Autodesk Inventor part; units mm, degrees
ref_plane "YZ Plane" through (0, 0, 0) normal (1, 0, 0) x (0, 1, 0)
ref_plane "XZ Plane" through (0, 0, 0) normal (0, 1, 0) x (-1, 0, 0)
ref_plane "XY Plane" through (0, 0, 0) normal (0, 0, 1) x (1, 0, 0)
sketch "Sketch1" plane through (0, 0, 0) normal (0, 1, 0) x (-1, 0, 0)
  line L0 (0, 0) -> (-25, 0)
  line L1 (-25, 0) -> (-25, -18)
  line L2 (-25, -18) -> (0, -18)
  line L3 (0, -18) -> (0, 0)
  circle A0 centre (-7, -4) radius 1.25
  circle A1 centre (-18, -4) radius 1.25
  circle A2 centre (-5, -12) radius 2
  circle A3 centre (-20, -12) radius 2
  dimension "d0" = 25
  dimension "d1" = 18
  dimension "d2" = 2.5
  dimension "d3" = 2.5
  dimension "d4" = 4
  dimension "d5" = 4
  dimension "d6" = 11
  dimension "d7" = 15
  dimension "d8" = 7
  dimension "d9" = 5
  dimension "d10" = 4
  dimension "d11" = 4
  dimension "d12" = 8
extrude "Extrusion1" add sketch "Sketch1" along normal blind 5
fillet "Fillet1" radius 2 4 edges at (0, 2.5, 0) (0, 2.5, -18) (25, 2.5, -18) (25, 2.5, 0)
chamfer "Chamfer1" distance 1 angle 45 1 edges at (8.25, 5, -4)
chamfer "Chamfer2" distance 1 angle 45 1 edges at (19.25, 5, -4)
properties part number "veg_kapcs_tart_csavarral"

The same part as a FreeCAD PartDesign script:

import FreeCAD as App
import Part
import Sketcher
from FreeCAD import Vector
Q = App.Units.Quantity


def edges_at(feature, points):
    """Names of the edges that pass closest to the given points."""
    edges = feature.Shape.Edges
    near = lambda p: min(range(len(edges)), key=lambda i: edges[i].distToShape(Part.Vertex(*p))[0])
    return sorted({f"Edge{near(p) + 1}" for p in points})


def add_polygon(sketch, points):
    """Adds a closed chain of lines whose ends are joined by coincident constraints."""
    first, n = sketch.GeometryCount, len(points)
    for a, b in zip(points, points[1:] + points[:1]):
        sketch.addGeometry(Part.LineSegment(App.Vector(*a, 0), App.Vector(*b, 0)), False)
    for i in range(n):
        sketch.addConstraint(Sketcher.Constraint("Coincident", first + i, 2, first + (i + 1) % n, 1))

doc = App.newDocument("Part")
params = doc.addObject("Spreadsheet::Sheet", "Params")
for row, (alias, value) in enumerate([
    ("sketch1_diameter", "4 mm"),
    ("sketch1_diameter2", "2.5 mm"),
    ("sketch1_width", "25 mm"),
    ("sketch1_height", "18 mm"),
    ("pad1_length", "5 mm"),
    ("fillet_radius", "2 mm"),
    ("chamfer_size", "1 mm"),
    ("chamfer2_size", "1 mm"),
], start=1):
    params.set(f"A{row}", alias)
    params.set(f"B{row}", "=" + value)
    params.setAlias(f"B{row}", alias)

body = doc.addObject("PartDesign::Body", "Body")

sketch1 = body.newObject("Sketcher::SketchObject", "Sketch")
sketch1.AttachmentSupport = (doc.getObject("XZ_Plane"), [""])
sketch1.MapMode = "FlatFace"
add_polygon(sketch1, [(0, -18), (0, 0), (25, 0), (25, -18)])
sketch1.addGeometry(Part.Circle(Vector(20, -12, 0), Vector(0, 0, 1), 2), False)
sketch1.addGeometry(Part.Circle(Vector(5, -12, 0), Vector(0, 0, 1), 2), False)
sketch1.addGeometry(Part.Circle(Vector(18, -4, 0), Vector(0, 0, 1), 1.2), False)
sketch1.addGeometry(Part.Circle(Vector(7, -4, 0), Vector(0, 0, 1), 1.2), False)
sketch1.addConstraint(Sketcher.Constraint("Vertical", 0))
sketch1.addConstraint(Sketcher.Constraint("Horizontal", 1))
sketch1.addConstraint(Sketcher.Constraint("Vertical", 2))
sketch1.addConstraint(Sketcher.Constraint("Horizontal", 3))
sketch1.addConstraint(Sketcher.Constraint("Coincident", 0, 2, -1, 1))
sketch1.addConstraint(Sketcher.Constraint("Equal", 4, 5))
sketch1.addConstraint(Sketcher.Constraint("Equal", 6, 7))
sketch1.addConstraint(Sketcher.Constraint("Horizontal", 4, 3, 5, 3))
sketch1.addConstraint(Sketcher.Constraint("Horizontal", 6, 3, 7, 3))
sketch1.addConstraint(Sketcher.Constraint("Diameter", 4, Q("4 mm")))
sketch1.addConstraint(Sketcher.Constraint("Diameter", 6, Q("2.5 mm")))
sketch1.addConstraint(Sketcher.Constraint("DistanceX", 1, 1, 1, 2, Q("25 mm")))
sketch1.addConstraint(Sketcher.Constraint("DistanceY", 0, 1, 0, 2, Q("18 mm")))
sketch1.addConstraint(Sketcher.Constraint("DistanceX", -1, 1, 5, 3, Q("5 mm")))
sketch1.addConstraint(Sketcher.Constraint("DistanceX", -1, 1, 6, 3, Q("18 mm")))
sketch1.addConstraint(Sketcher.Constraint("DistanceY", 6, 3, -1, 1, Q("4 mm")))
sketch1.addConstraint(Sketcher.Constraint("DistanceX", -1, 1, 7, 3, Q("7 mm")))
sketch1.addConstraint(Sketcher.Constraint("DistanceX", 5, 3, 4, 3, Q("15 mm")))
sketch1.addConstraint(Sketcher.Constraint("DistanceY", 4, 3, 6, 3, Q("8 mm")))
sketch1.setExpression("Constraints[13]", "Params.sketch1_diameter")
sketch1.setExpression("Constraints[14]", "Params.sketch1_diameter2")
sketch1.setExpression("Constraints[15]", "Params.sketch1_width")
sketch1.setExpression("Constraints[16]", "Params.sketch1_height")
pad1 = body.newObject("PartDesign::Pad", "Pad")
pad1.Profile = sketch1
pad1.setExpression("Length", "Params.pad1_length")
pad1.Reversed = True
doc.recompute()

fillet = body.newObject("PartDesign::Fillet", "Fillet")
fillet.Base = (pad1, edges_at(pad1, [
    (0, 2.5, 0),
    (0, 2.5, -18),
    (25, 2.5, -18),
    (25, 2.5, 0),
]))
fillet.setExpression("Radius", "Params.fillet_radius")
doc.recompute()

chamfer = body.newObject("PartDesign::Chamfer", "Chamfer")
chamfer.Base = (fillet, edges_at(fillet, [(8.25, 5, -4)]))
chamfer.setExpression("Size", "Params.chamfer_size")
doc.recompute()

chamfer2 = body.newObject("PartDesign::Chamfer", "Chamfer001")
chamfer2.Base = (chamfer, edges_at(chamfer, [(19.25, 5, -4)]))
chamfer2.setExpression("Size", "Params.chamfer2_size")

doc.recompute()
